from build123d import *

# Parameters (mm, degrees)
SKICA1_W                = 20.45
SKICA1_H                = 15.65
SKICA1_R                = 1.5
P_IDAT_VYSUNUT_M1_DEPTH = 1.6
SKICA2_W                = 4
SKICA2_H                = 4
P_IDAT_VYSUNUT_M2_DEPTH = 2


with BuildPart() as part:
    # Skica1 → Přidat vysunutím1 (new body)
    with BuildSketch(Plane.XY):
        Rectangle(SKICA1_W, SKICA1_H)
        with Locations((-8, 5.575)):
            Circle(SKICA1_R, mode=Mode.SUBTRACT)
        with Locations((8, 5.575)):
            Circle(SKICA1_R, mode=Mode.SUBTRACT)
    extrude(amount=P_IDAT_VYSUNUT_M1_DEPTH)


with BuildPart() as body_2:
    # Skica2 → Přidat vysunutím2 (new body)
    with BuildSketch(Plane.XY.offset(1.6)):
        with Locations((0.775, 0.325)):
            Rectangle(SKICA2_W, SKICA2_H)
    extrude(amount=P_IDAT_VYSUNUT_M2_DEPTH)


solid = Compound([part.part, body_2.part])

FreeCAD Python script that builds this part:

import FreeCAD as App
import Part
import Sketcher

doc = App.newDocument("Part")
body = doc.addObject("PartDesign::Body", "Body")

# Sketch on XY plane
sketch1 = doc.addObject("Sketcher::SketchObject", "Sketch")
body.addObject(sketch1)
sketch1.AttachmentSupport = (doc.XY_Plane, [""])
sketch1.MapMode = "FlatFace"
sketch1.addGeometry(Part.LineSegment(App.Vector(-10.2, 7.8, 0), App.Vector(-10.2, -7.8, 0)), False)
sketch1.addGeometry(Part.LineSegment(App.Vector(-10.2, -7.8, 0), App.Vector(10.2, -7.8, 0)), False)
sketch1.addGeometry(Part.LineSegment(App.Vector(10.2, -7.8, 0), App.Vector(10.2, 7.8, 0)), False)
sketch1.addGeometry(Part.LineSegment(App.Vector(10.2, 7.8, 0), App.Vector(-10.2, 7.8, 0)), False)
sketch1.addGeometry(Part.Circle(App.Vector(-8, 5.6, 0), App.Vector(0, 0, 1), 1.5), False)
sketch1.addGeometry(Part.Circle(App.Vector(8, 5.6, 0), App.Vector(0, 0, 1), 1.5), False)
sketch1.addConstraint(Sketcher.Constraint("Coincident", 0, 2, 1, 1))
sketch1.addConstraint(Sketcher.Constraint("Coincident", 1, 2, 2, 1))
sketch1.addConstraint(Sketcher.Constraint("Coincident", 2, 2, 3, 1))
sketch1.addConstraint(Sketcher.Constraint("Coincident", 3, 2, 0, 1))
sketch1.addConstraint(Sketcher.Constraint("Vertical", 0))
sketch1.addConstraint(Sketcher.Constraint("Horizontal", 1))
sketch1.addConstraint(Sketcher.Constraint("Vertical", 2))
sketch1.addConstraint(Sketcher.Constraint("Horizontal", 3))
sketch1.addConstraint(Sketcher.Constraint("Equal", 4, 5))
sketch1.addConstraint(Sketcher.Constraint("Symmetric", 0, 2, 2, 2, -1, 1))
sketch1.addConstraint(Sketcher.Constraint("Symmetric", 4, 3, 5, 3, -2))
sketch1.addConstraint(Sketcher.Constraint("Diameter", 4, 3.0))
sketch1.addConstraint(Sketcher.Constraint("DistanceX", 4, 3, -1, 1, 8.0))
sketch1.addConstraint(Sketcher.Constraint("DistanceX", 1, 1, 1, 2, 20.45))
sketch1.addConstraint(Sketcher.Constraint("DistanceY", 0, 2, 0, 1, 15.65))
sketch1.addConstraint(Sketcher.Constraint("DistanceY", 0, 2, 4, 3, 13.4))
pad1 = doc.addObject("PartDesign::Pad", "Pad")
body.addObject(pad1)
pad1.Profile = sketch1
pad1.Length = 1.6
body2 = doc.addObject("PartDesign::Body", "Body001")

# Sketch on XY plane
sketch2 = doc.addObject("Sketcher::SketchObject", "Sketch001")
body2.addObject(sketch2)
sketch2.AttachmentSupport = (doc.getObject("XY_Plane001"), [""])
sketch2.MapMode = "FlatFace"
sketch2.AttachmentOffset = App.Placement(App.Vector(0, 0, 1.6), App.Rotation())
sketch2.addGeometry(Part.LineSegment(App.Vector(-1.2, 2.3, 0), App.Vector(-1.2, -1.7, 0)), False)
sketch2.addGeometry(Part.LineSegment(App.Vector(-1.2, -1.7, 0), App.Vector(2.8, -1.7, 0)), False)
sketch2.addGeometry(Part.LineSegment(App.Vector(2.8, -1.7, 0), App.Vector(2.8, 2.3, 0)), False)
sketch2.addGeometry(Part.LineSegment(App.Vector(2.8, 2.3, 0), App.Vector(-1.2, 2.3, 0)), False)
sketch2.addConstraint(Sketcher.Constraint("Coincident", 0, 2, 1, 1))
sketch2.addConstraint(Sketcher.Constraint("Coincident", 1, 2, 2, 1))
sketch2.addConstraint(Sketcher.Constraint("Coincident", 2, 2, 3, 1))
sketch2.addConstraint(Sketcher.Constraint("Coincident", 3, 2, 0, 1))
sketch2.addConstraint(Sketcher.Constraint("Vertical", 0))
sketch2.addConstraint(Sketcher.Constraint("Horizontal", 1))
sketch2.addConstraint(Sketcher.Constraint("Vertical", 2))
sketch2.addConstraint(Sketcher.Constraint("Horizontal", 3))
sketch2.addConstraint(Sketcher.Constraint("Equal", 3, 0))
sketch2.addConstraint(Sketcher.Constraint("DistanceX", 1, 1, 1, 2, 4.0))
sketch2.addConstraint(Sketcher.Constraint("DistanceX", 0, 2, -1, 1, 1.225))
sketch2.addConstraint(Sketcher.Constraint("DistanceY", 0, 2, -1, 1, 1.675))
pad2 = doc.addObject("PartDesign::Pad", "Pad001")
body2.addObject(pad2)
pad2.Profile = sketch2
pad2.Length = 2

doc.recompute()
